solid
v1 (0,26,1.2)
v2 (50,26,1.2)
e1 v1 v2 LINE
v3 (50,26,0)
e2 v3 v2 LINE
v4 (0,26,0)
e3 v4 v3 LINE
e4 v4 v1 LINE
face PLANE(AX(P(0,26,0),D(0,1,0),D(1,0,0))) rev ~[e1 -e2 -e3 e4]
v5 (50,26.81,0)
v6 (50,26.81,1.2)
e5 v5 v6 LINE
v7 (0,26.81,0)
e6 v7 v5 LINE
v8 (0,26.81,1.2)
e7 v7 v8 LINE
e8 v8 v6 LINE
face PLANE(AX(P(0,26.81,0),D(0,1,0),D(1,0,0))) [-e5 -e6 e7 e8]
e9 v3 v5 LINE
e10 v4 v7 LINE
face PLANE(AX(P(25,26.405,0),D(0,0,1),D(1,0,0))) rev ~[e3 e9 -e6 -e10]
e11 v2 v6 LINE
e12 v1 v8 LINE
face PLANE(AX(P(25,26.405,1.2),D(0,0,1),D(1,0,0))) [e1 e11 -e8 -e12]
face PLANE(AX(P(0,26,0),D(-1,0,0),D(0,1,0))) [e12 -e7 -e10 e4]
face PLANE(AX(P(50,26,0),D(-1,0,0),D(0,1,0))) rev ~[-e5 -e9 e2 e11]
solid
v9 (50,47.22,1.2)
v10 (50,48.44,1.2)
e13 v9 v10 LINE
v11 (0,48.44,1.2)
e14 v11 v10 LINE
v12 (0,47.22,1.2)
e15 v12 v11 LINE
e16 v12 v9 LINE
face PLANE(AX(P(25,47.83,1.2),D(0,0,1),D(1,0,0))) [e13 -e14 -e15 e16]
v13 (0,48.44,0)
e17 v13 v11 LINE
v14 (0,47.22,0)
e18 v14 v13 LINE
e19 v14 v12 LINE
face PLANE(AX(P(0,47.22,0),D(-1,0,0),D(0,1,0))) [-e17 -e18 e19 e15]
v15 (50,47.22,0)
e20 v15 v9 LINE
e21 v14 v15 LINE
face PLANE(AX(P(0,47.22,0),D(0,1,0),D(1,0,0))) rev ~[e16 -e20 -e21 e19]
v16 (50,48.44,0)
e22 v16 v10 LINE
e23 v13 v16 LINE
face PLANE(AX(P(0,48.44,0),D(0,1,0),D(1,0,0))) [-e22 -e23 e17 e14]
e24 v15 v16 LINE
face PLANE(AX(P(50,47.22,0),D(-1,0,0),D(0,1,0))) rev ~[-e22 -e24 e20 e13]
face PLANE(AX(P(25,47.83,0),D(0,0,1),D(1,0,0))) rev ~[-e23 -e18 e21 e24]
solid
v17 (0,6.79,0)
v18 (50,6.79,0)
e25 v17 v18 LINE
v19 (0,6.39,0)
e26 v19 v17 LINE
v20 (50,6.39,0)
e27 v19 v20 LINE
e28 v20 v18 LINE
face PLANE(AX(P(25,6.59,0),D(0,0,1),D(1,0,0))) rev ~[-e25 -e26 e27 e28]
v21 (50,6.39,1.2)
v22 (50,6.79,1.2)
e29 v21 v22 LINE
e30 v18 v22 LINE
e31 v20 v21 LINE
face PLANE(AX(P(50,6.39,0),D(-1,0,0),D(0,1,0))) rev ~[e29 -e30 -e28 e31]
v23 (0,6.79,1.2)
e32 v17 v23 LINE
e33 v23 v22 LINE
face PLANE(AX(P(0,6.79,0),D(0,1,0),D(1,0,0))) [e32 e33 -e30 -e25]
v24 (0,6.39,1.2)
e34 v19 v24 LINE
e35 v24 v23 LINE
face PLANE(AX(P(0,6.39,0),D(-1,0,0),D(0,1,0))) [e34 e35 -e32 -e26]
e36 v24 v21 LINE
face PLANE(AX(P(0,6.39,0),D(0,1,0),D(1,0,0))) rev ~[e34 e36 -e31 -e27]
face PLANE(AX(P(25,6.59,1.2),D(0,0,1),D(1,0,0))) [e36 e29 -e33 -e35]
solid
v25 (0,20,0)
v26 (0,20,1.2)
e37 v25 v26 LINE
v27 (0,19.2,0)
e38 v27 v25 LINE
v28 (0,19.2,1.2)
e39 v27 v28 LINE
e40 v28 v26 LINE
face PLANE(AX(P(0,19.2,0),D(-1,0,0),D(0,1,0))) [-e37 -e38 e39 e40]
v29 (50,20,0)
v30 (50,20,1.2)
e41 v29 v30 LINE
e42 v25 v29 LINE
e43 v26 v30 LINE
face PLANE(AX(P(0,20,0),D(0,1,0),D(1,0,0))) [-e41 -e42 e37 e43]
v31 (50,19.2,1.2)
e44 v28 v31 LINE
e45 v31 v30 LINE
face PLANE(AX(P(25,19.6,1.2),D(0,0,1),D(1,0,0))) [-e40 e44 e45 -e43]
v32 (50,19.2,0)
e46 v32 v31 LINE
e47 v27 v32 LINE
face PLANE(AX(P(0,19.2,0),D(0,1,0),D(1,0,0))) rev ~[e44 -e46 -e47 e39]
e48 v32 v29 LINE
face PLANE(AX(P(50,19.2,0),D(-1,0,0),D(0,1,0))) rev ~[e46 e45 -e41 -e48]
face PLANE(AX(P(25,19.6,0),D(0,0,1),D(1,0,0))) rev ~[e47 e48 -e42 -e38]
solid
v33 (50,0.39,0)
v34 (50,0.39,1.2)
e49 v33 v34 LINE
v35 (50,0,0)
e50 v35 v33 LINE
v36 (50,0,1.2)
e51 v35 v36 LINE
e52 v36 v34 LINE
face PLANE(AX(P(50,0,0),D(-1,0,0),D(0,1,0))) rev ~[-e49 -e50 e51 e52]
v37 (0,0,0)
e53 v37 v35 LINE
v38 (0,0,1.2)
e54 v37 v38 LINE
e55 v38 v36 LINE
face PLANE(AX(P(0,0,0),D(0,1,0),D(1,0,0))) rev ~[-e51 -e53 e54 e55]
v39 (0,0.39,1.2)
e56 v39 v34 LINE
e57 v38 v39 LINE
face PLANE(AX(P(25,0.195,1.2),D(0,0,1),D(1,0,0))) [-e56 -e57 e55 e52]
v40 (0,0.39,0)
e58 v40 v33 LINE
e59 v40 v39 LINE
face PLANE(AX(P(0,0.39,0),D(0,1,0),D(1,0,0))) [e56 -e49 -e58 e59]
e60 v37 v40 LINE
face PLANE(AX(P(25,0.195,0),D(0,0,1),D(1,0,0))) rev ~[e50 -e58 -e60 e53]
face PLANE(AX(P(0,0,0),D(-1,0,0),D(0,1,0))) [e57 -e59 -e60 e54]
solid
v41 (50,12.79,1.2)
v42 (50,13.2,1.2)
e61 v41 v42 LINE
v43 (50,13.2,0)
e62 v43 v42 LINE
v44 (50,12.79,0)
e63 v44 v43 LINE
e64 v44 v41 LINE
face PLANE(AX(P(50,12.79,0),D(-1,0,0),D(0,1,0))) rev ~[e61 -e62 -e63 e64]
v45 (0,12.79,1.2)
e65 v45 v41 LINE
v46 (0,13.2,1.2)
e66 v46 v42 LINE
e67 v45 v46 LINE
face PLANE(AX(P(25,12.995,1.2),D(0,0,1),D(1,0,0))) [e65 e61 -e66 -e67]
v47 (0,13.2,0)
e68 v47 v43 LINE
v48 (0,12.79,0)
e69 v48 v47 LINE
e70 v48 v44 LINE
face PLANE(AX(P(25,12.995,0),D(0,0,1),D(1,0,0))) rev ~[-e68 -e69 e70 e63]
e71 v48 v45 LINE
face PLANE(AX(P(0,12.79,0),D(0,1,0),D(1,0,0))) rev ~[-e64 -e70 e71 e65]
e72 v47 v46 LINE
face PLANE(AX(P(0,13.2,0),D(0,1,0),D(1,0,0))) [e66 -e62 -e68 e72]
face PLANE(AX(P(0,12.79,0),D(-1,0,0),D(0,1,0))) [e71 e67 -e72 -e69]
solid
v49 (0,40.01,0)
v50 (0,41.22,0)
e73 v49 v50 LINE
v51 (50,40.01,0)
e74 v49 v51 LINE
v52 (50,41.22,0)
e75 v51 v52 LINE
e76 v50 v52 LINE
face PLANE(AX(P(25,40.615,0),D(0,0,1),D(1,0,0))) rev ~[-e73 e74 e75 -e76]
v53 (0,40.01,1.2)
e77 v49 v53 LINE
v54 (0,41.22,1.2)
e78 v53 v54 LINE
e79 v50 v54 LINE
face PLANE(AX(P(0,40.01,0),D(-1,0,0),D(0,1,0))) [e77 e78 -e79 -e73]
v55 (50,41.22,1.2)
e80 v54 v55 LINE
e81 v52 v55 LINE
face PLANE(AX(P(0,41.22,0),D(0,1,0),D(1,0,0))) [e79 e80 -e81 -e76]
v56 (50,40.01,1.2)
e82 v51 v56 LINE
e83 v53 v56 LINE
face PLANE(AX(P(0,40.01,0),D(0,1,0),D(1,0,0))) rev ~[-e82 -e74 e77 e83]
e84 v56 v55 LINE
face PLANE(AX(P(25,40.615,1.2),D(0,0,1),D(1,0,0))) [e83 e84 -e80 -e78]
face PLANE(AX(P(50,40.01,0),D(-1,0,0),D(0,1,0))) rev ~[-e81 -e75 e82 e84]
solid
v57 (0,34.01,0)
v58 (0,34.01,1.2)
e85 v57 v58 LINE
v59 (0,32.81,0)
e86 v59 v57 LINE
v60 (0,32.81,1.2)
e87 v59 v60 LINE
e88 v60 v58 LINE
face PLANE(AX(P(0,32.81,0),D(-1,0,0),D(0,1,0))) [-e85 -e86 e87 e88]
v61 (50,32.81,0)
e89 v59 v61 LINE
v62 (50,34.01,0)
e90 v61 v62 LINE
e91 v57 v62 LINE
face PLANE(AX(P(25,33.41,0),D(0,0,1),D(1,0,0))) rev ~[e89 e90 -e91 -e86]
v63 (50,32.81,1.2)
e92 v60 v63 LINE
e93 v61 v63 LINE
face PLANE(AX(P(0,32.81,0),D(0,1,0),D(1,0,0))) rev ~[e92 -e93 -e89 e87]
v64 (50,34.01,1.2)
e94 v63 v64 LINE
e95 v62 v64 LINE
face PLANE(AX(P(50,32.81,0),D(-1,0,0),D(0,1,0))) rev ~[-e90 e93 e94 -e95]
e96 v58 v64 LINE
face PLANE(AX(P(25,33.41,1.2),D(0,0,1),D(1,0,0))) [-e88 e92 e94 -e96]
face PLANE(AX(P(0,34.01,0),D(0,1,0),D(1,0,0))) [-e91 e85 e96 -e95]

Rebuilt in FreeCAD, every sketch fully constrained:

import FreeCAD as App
import Part
import Sketcher
from FreeCAD import Vector


def add_polygon(sketch, points):
    """Adds a closed chain of lines whose ends are joined by coincident constraints."""
    first, n = sketch.GeometryCount, len(points)
    for a, b in zip(points, points[1:] + points[:1]):
        sketch.addGeometry(Part.LineSegment(App.Vector(*a, 0), App.Vector(*b, 0)), False)
    for i in range(n):
        sketch.addConstraint(Sketcher.Constraint("Coincident", first + i, 2, first + (i + 1) % n, 1))

doc = App.newDocument("Part")
body = doc.addObject("PartDesign::Body", "Body")
body.AllowCompound = True

# Sketch on XY plane
sketch1 = doc.addObject("Sketcher::SketchObject", "Sketch")
body.addObject(sketch1)
sketch1.AttachmentSupport = (doc.XY_Plane, [""])
sketch1.MapMode = "FlatFace"
add_polygon(sketch1, [(0, 0.39), (0, 0), (50, 0), (50, 0.39)])  # lines 0-3
add_polygon(sketch1, [(0, 6.79), (0, 6.39), (50, 6.39), (50, 6.79)])  # lines 4-7
add_polygon(sketch1, [(0, 13.2), (0, 12.79), (50, 12.79), (50, 13.2)])  # lines 8-11
add_polygon(sketch1, [(0, 20), (0, 19.2), (50, 19.2), (50, 20)])  # lines 12-15
add_polygon(sketch1, [(0, 26.81), (0, 26), (50, 26), (50, 26.81)])  # lines 16-19
add_polygon(sketch1, [(0, 34.01), (0, 32.81), (50, 32.81), (50, 34.01)])  # lines 20-23
add_polygon(sketch1, [(0, 41.22), (0, 40.01), (50, 40.01), (50, 41.22)])  # lines 24-27
add_polygon(sketch1, [(0, 48.44), (0, 47.22), (50, 47.22), (50, 48.44)])  # lines 28-31
sketch1.addConstraint(Sketcher.Constraint("Vertical", 0))
sketch1.addConstraint(Sketcher.Constraint("Horizontal", 1))
sketch1.addConstraint(Sketcher.Constraint("Vertical", 2))
sketch1.addConstraint(Sketcher.Constraint("Horizontal", 3))
sketch1.addConstraint(Sketcher.Constraint("Vertical", 4))
sketch1.addConstraint(Sketcher.Constraint("Horizontal", 5))
sketch1.addConstraint(Sketcher.Constraint("Vertical", 6))
sketch1.addConstraint(Sketcher.Constraint("Horizontal", 7))
sketch1.addConstraint(Sketcher.Constraint("Vertical", 8))
sketch1.addConstraint(Sketcher.Constraint("Horizontal", 9))
sketch1.addConstraint(Sketcher.Constraint("Vertical", 10))
sketch1.addConstraint(Sketcher.Constraint("Horizontal", 11))
sketch1.addConstraint(Sketcher.Constraint("Vertical", 12))
sketch1.addConstraint(Sketcher.Constraint("Horizontal", 13))
sketch1.addConstraint(Sketcher.Constraint("Vertical", 14))
sketch1.addConstraint(Sketcher.Constraint("Horizontal", 15))
sketch1.addConstraint(Sketcher.Constraint("Vertical", 16))
sketch1.addConstraint(Sketcher.Constraint("Horizontal", 17))
sketch1.addConstraint(Sketcher.Constraint("Vertical", 18))
sketch1.addConstraint(Sketcher.Constraint("Horizontal", 19))
sketch1.addConstraint(Sketcher.Constraint("Vertical", 20))
sketch1.addConstraint(Sketcher.Constraint("Horizontal", 21))
sketch1.addConstraint(Sketcher.Constraint("Vertical", 22))
sketch1.addConstraint(Sketcher.Constraint("Horizontal", 23))
sketch1.addConstraint(Sketcher.Constraint("Vertical", 24))
sketch1.addConstraint(Sketcher.Constraint("Horizontal", 25))
sketch1.addConstraint(Sketcher.Constraint("Vertical", 26))
sketch1.addConstraint(Sketcher.Constraint("Horizontal", 27))
sketch1.addConstraint(Sketcher.Constraint("Vertical", 28))
sketch1.addConstraint(Sketcher.Constraint("Horizontal", 29))
sketch1.addConstraint(Sketcher.Constraint("Vertical", 30))
sketch1.addConstraint(Sketcher.Constraint("Horizontal", 31))
sketch1.addConstraint(Sketcher.Constraint("Coincident", 0, 2, -1, 1))
sketch1.addConstraint(Sketcher.Constraint("PointOnObject", 4, 2, -2))
sketch1.addConstraint(Sketcher.Constraint("PointOnObject", 8, 2, -2))
sketch1.addConstraint(Sketcher.Constraint("PointOnObject", 12, 2, -2))
sketch1.addConstraint(Sketcher.Constraint("PointOnObject", 16, 2, -2))
sketch1.addConstraint(Sketcher.Constraint("PointOnObject", 20, 2, -2))
sketch1.addConstraint(Sketcher.Constraint("PointOnObject", 24, 2, -2))
sketch1.addConstraint(Sketcher.Constraint("PointOnObject", 28, 2, -2))
sketch1.addConstraint(Sketcher.Constraint("Vertical", 2, 2, 5, 2))
sketch1.addConstraint(Sketcher.Constraint("Vertical", 6, 2, 9, 2))
sketch1.addConstraint(Sketcher.Constraint("Vertical", 10, 2, 13, 2))
sketch1.addConstraint(Sketcher.Constraint("Vertical", 14, 2, 17, 2))
sketch1.addConstraint(Sketcher.Constraint("Vertical", 18, 2, 21, 2))
sketch1.addConstraint(Sketcher.Constraint("Vertical", 22, 2, 25, 2))
sketch1.addConstraint(Sketcher.Constraint("Vertical", 26, 2, 29, 2))
sketch1.addConstraint(Sketcher.Constraint("DistanceX", 1, 1, 1, 2, 50.0))
sketch1.addConstraint(Sketcher.Constraint("DistanceY", 4, 2, 4, 1, 0.4))
sketch1.addConstraint(Sketcher.Constraint("DistanceY", 12, 2, 12, 1, 0.8))
sketch1.addConstraint(Sketcher.Constraint("DistanceY", 20, 2, 20, 1, 1.2))
sketch1.addConstraint(Sketcher.Constraint("DistanceY", -1, 1, 14, 2, 20.0))
sketch1.addConstraint(Sketcher.Constraint("DistanceY", -1, 1, 16, 2, 26.0))
sketch1.addConstraint(Sketcher.Constraint("DistanceY", 3, 2, 4, 2, 6.0))
sketch1.addConstraint(Sketcher.Constraint("DistanceY", 7, 2, 8, 2, 6.0))
sketch1.addConstraint(Sketcher.Constraint("DistanceY", 11, 2, 12, 2, 6.0))
sketch1.addConstraint(Sketcher.Constraint("DistanceY", 19, 2, 20, 2, 6.0))
sketch1.addConstraint(Sketcher.Constraint("DistanceY", 23, 2, 24, 2, 6.0))
sketch1.addConstraint(Sketcher.Constraint("DistanceY", 27, 2, 28, 2, 6.0))
sketch1.addConstraint(Sketcher.Constraint("DistanceY", 0, 2, 0, 1, 0.39))
sketch1.addConstraint(Sketcher.Constraint("DistanceY", 16, 2, 16, 1, 0.81))
sketch1.addConstraint(Sketcher.Constraint("DistanceY", 24, 2, 24, 1, 1.21))
sketch1.addConstraint(Sketcher.Constraint("DistanceY", 28, 2, 28, 1, 1.22))
pad1 = doc.addObject("PartDesign::Pad", "Pad")
body.addObject(pad1)
pad1.Profile = sketch1
pad1.Length = 1.2

doc.recompute()
